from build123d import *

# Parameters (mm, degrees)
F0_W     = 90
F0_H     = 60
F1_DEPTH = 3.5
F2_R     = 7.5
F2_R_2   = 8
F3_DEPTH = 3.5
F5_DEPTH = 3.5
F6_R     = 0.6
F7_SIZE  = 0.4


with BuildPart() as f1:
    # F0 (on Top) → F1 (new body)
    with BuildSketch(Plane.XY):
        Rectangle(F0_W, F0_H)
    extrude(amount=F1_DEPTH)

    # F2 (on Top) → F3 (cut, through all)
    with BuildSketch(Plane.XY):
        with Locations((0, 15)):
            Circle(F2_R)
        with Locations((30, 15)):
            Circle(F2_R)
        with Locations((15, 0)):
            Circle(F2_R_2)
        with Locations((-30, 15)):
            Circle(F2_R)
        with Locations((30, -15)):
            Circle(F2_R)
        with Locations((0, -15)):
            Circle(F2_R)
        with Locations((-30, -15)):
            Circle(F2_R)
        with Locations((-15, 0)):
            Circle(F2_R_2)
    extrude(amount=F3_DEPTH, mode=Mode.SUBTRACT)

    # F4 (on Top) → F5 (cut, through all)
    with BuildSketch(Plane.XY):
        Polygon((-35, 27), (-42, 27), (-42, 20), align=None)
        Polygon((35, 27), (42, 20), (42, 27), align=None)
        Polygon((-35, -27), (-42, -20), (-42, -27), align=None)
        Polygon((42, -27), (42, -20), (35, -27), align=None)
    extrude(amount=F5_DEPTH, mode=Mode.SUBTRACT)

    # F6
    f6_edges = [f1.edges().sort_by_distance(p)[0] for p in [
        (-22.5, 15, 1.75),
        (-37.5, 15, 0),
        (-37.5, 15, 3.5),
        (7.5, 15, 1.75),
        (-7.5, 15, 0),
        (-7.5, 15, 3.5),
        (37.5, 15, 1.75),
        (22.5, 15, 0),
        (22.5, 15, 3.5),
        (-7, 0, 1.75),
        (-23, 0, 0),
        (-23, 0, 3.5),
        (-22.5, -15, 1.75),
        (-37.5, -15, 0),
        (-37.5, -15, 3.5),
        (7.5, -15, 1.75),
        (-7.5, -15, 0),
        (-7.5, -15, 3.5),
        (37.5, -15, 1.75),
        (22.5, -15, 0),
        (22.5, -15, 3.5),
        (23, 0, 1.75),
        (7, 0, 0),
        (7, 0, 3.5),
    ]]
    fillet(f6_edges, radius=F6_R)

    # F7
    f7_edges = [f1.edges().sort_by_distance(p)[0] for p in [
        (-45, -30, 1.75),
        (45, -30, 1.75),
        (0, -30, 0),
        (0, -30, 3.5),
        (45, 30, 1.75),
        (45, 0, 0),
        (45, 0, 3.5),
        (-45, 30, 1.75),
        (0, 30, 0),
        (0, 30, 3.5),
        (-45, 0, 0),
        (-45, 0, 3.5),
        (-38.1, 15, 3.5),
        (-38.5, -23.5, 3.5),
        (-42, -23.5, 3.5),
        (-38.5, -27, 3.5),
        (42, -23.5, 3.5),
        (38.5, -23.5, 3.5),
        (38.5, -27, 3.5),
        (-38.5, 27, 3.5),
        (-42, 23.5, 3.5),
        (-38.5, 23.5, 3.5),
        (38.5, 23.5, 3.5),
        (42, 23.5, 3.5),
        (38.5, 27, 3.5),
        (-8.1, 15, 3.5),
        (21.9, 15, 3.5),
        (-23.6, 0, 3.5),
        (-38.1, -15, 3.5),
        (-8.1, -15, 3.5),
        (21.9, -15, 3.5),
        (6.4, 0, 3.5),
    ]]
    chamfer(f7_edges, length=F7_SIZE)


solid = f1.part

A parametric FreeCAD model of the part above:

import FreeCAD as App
import Part
import Sketcher
Q = App.Units.Quantity


def edges_at(feature, points):
    """Names of the edges that pass closest to the given points."""
    edges = feature.Shape.Edges
    near = lambda p: min(range(len(edges)), key=lambda i: edges[i].distToShape(Part.Vertex(*p))[0])
    return sorted({f"Edge{near(p) + 1}" for p in points})

doc = App.newDocument("Part")
params = doc.addObject("Spreadsheet::Sheet", "Params")
for row, (alias, value) in enumerate([
    ("sketch1_width", "90 mm"),
    ("sketch1_height", "60 mm"),
    ("pad1_length", "3.5 mm"),
    ("sketch2_diameter", "15 mm"),
    ("sketch2_diameter2", "16 mm"),
    ("sketch3_width", "7 mm"),
    ("fillet_radius", "0.6 mm"),
    ("chamfer_size", "0.4 mm"),
], start=1):
    params.set(f"A{row}", alias)
    params.set(f"B{row}", "=" + value)
    params.setAlias(f"B{row}", alias)

body = doc.addObject("PartDesign::Body", "Body")

# Sketch on XY plane
sketch1 = body.newObject("Sketcher::SketchObject", "Sketch")
sketch1.AttachmentSupport = (doc.getObject("XY_Plane"), [""])
sketch1.MapMode = "FlatFace"
sketch1.addGeometry([
    Part.LineSegment(App.Vector(-45, 30, 0), App.Vector(-45, -30, 0)),
    Part.LineSegment(App.Vector(-45, -30, 0), App.Vector(45, -30, 0)),
    Part.LineSegment(App.Vector(45, -30, 0), App.Vector(45, 30, 0)),
    Part.LineSegment(App.Vector(45, 30, 0), App.Vector(-45, 30, 0)),
], False)
sketch1.addConstraint([
    Sketcher.Constraint("Coincident", 0, 2, 1, 1),
    Sketcher.Constraint("Coincident", 1, 2, 2, 1),
    Sketcher.Constraint("Coincident", 2, 2, 3, 1),
    Sketcher.Constraint("Coincident", 3, 2, 0, 1),
    Sketcher.Constraint("Vertical", 0),
    Sketcher.Constraint("Horizontal", 1),
    Sketcher.Constraint("Vertical", 2),
    Sketcher.Constraint("Horizontal", 3),
    Sketcher.Constraint("Symmetric", 0, 2, 2, 2, -1, 1),
    Sketcher.Constraint("DistanceX", 1, 1, 1, 2, Q("90 mm")),
    Sketcher.Constraint("DistanceY", 0, 2, 0, 1, Q("60 mm")),
])
sketch1.setExpression("Constraints[9]", "Params.sketch1_width")
sketch1.setExpression("Constraints[10]", "Params.sketch1_height")
pad1 = body.newObject("PartDesign::Pad", "Pad")
pad1.Profile = sketch1
pad1.setExpression("Length", "Params.pad1_length")

# Sketch on XY plane
sketch2 = body.newObject("Sketcher::SketchObject", "Sketch001")
sketch2.AttachmentSupport = (doc.getObject("XY_Plane"), [""])
sketch2.MapMode = "FlatFace"
sketch2.addGeometry([
    Part.Circle(App.Vector(0, 15, 0), App.Vector(0, 0, 1), 7.5),  # 0
    Part.Circle(App.Vector(30, 15, 0), App.Vector(0, 0, 1), 7.5),  # 1
    Part.Circle(App.Vector(15, 0, 0), App.Vector(0, 0, 1), 8),  # 2
    Part.Circle(App.Vector(-30, 15, 0), App.Vector(0, 0, 1), 7.5),  # 3
    Part.Circle(App.Vector(30, -15, 0), App.Vector(0, 0, 1), 7.5),  # 4
    Part.Circle(App.Vector(0, -15, 0), App.Vector(0, 0, 1), 7.5),  # 5
    Part.Circle(App.Vector(-30, -15, 0), App.Vector(0, 0, 1), 7.5),  # 6
    Part.Circle(App.Vector(-15, 0, 0), App.Vector(0, 0, 1), 8),  # 7
], False)
sketch2.addConstraint([
    Sketcher.Constraint("Equal", 0, 1),
    Sketcher.Constraint("Equal", 1, 3),
    Sketcher.Constraint("Equal", 3, 4),
    Sketcher.Constraint("Equal", 4, 5),
    Sketcher.Constraint("Equal", 5, 6),
    Sketcher.Constraint("Equal", 2, 7),
    Sketcher.Constraint("Symmetric", 3, 3, 4, 3, -1, 1),
    Sketcher.Constraint("Symmetric", 0, 3, 5, 3, -1, 1),
    Sketcher.Constraint("Symmetric", 1, 3, 6, 3, -1, 1),
    Sketcher.Constraint("Symmetric", 2, 3, 7, 3, -1, 1),
    Sketcher.Constraint("Symmetric", 1, 3, 3, 3, -2),
    Sketcher.Constraint("PointOnObject", 0, 3, -2),
    Sketcher.Constraint("PointOnObject", 2, 3, -1),
    Sketcher.Constraint("Horizontal", 0, 3, 1, 3),
    Sketcher.Constraint("Diameter", 0, Q("15 mm")),
    Sketcher.Constraint("Diameter", 2, Q("16 mm")),
    Sketcher.Constraint("DistanceY", -1, 1, 0, 3, Q("15 mm")),
    Sketcher.Constraint("DistanceX", -1, 1, 1, 3, Q("30 mm")),
    Sketcher.Constraint("DistanceX", -1, 1, 2, 3, Q("15 mm")),
])
sketch2.setExpression("Constraints[14]", "Params.sketch2_diameter")
sketch2.setExpression("Constraints[15]", "Params.sketch2_diameter2")
pocket1 = body.newObject("PartDesign::Pocket", "Pocket")
pocket1.Profile = sketch2
pocket1.Type = "ThroughAll"
pocket1.Reversed = True

# Sketch on XY plane
sketch3 = body.newObject("Sketcher::SketchObject", "Sketch002")
sketch3.AttachmentSupport = (doc.getObject("XY_Plane"), [""])
sketch3.MapMode = "FlatFace"
sketch3.addGeometry([
    Part.LineSegment(App.Vector(-35, 27, 0), App.Vector(-42, 27, 0)),  # 0
    Part.LineSegment(App.Vector(-42, 27, 0), App.Vector(-42, 20, 0)),  # 1
    Part.LineSegment(App.Vector(-42, 20, 0), App.Vector(-35, 27, 0)),  # 2
    Part.LineSegment(App.Vector(35, 27, 0), App.Vector(42, 20, 0)),  # 3
    Part.LineSegment(App.Vector(42, 20, 0), App.Vector(42, 27, 0)),  # 4
    Part.LineSegment(App.Vector(42, 27, 0), App.Vector(35, 27, 0)),  # 5
    Part.LineSegment(App.Vector(-35, -27, 0), App.Vector(-42, -20, 0)),  # 6
    Part.LineSegment(App.Vector(-42, -20, 0), App.Vector(-42, -27, 0)),  # 7
    Part.LineSegment(App.Vector(-42, -27, 0), App.Vector(-35, -27, 0)),  # 8
    Part.LineSegment(App.Vector(42, -27, 0), App.Vector(42, -20, 0)),  # 9
    Part.LineSegment(App.Vector(42, -20, 0), App.Vector(35, -27, 0)),  # 10
    Part.LineSegment(App.Vector(35, -27, 0), App.Vector(42, -27, 0)),  # 11
], False)
sketch3.addConstraint([
    Sketcher.Constraint("Coincident", 0, 2, 1, 1),
    Sketcher.Constraint("Coincident", 1, 2, 2, 1),
    Sketcher.Constraint("Coincident", 2, 2, 0, 1),
    Sketcher.Constraint("Coincident", 3, 2, 4, 1),
    Sketcher.Constraint("Coincident", 4, 2, 5, 1),
    Sketcher.Constraint("Coincident", 5, 2, 3, 1),
    Sketcher.Constraint("Coincident", 6, 2, 7, 1),
    Sketcher.Constraint("Coincident", 7, 2, 8, 1),
    Sketcher.Constraint("Coincident", 8, 2, 6, 1),
    Sketcher.Constraint("Coincident", 9, 2, 10, 1),
    Sketcher.Constraint("Coincident", 10, 2, 11, 1),
    Sketcher.Constraint("Coincident", 11, 2, 9, 1),
    Sketcher.Constraint("Horizontal", 0),
    Sketcher.Constraint("Vertical", 1),
    Sketcher.Constraint("Vertical", 4),
    Sketcher.Constraint("Horizontal", 5),
    Sketcher.Constraint("Vertical", 7),
    Sketcher.Constraint("Horizontal", 8),
    Sketcher.Constraint("Vertical", 9),
    Sketcher.Constraint("Horizontal", 11),
    Sketcher.Constraint("Symmetric", 3, 2, 6, 2, -1, 1),
    Sketcher.Constraint("Symmetric", 5, 2, 8, 2, -1, 1),
    Sketcher.Constraint("Symmetric", 1, 2, 9, 2, -1, 1),
    Sketcher.Constraint("Symmetric", 2, 2, 10, 2, -1, 1),
    Sketcher.Constraint("Symmetric", 1, 2, 3, 2, -2),
    Sketcher.Constraint("Symmetric", 2, 2, 5, 2, -2),
    Sketcher.Constraint("Perpendicular", 2, 3),
    Sketcher.Constraint("DistanceX", 0, 2, 0, 1, Q("7 mm")),
    Sketcher.Constraint("DistanceX", 0, 2, -1, 1, Q("42 mm")),
    Sketcher.Constraint("DistanceY", -1, 1, 0, 2, Q("27 mm")),
])
sketch3.setExpression("Constraints[27]", "Params.sketch3_width")
pocket2 = body.newObject("PartDesign::Pocket", "Pocket001")
pocket2.Profile = sketch3
pocket2.Type = "ThroughAll"
pocket2.Reversed = True
doc.recompute()

fillet = body.newObject("PartDesign::Fillet", "Fillet")
fillet.Base = (pocket2, edges_at(pocket2, [
    (-22.5, 15, 1.75),
    (-37.5, 15, 0),
    (-37.5, 15, 3.5),
    (7.5, 15, 1.75),
    (-7.5, 15, 0),
    (-7.5, 15, 3.5),
    (37.5, 15, 1.75),
    (22.5, 15, 0),
    (22.5, 15, 3.5),
    (-7, 0, 1.75),
    (-23, 0, 0),
    (-23, 0, 3.5),
    (-22.5, -15, 1.75),
    (-37.5, -15, 0),
    (-37.5, -15, 3.5),
    (7.5, -15, 1.75),
    (-7.5, -15, 0),
    (-7.5, -15, 3.5),
    (37.5, -15, 1.75),
    (22.5, -15, 0),
    (22.5, -15, 3.5),
    (23, 0, 1.75),
    (7, 0, 0),
    (7, 0, 3.5),
]))
fillet.setExpression("Radius", "Params.fillet_radius")
doc.recompute()

chamfer = body.newObject("PartDesign::Chamfer", "Chamfer")
chamfer.Base = (fillet, edges_at(fillet, [
    (-45, -30, 1.75),
    (45, -30, 1.75),
    (0, -30, 0),
    (0, -30, 3.5),
    (45, 30, 1.75),
    (45, 0, 0),
    (45, 0, 3.5),
    (-45, 30, 1.75),
    (0, 30, 0),
    (0, 30, 3.5),
    (-45, 0, 0),
    (-45, 0, 3.5),
    (-38.1, 15, 3.5),
    (-38.5, -23.5, 3.5),
    (-42, -23.5, 3.5),
    (-38.5, -27, 3.5),
    (42, -23.5, 3.5),
    (38.5, -23.5, 3.5),
    (38.5, -27, 3.5),
    (-38.5, 27, 3.5),
    (-42, 23.5, 3.5),
    (-38.5, 23.5, 3.5),
    (38.5, 23.5, 3.5),
    (42, 23.5, 3.5),
    (38.5, 27, 3.5),
    (-8.1, 15, 3.5),
    (21.9, 15, 3.5),
    (-23.6, 0, 3.5),
    (-38.1, -15, 3.5),
    (-8.1, -15, 3.5),
    (21.9, -15, 3.5),
    (6.4, 0, 3.5),
]))
chamfer.setExpression("Size", "Params.chamfer_size")

doc.recompute()
